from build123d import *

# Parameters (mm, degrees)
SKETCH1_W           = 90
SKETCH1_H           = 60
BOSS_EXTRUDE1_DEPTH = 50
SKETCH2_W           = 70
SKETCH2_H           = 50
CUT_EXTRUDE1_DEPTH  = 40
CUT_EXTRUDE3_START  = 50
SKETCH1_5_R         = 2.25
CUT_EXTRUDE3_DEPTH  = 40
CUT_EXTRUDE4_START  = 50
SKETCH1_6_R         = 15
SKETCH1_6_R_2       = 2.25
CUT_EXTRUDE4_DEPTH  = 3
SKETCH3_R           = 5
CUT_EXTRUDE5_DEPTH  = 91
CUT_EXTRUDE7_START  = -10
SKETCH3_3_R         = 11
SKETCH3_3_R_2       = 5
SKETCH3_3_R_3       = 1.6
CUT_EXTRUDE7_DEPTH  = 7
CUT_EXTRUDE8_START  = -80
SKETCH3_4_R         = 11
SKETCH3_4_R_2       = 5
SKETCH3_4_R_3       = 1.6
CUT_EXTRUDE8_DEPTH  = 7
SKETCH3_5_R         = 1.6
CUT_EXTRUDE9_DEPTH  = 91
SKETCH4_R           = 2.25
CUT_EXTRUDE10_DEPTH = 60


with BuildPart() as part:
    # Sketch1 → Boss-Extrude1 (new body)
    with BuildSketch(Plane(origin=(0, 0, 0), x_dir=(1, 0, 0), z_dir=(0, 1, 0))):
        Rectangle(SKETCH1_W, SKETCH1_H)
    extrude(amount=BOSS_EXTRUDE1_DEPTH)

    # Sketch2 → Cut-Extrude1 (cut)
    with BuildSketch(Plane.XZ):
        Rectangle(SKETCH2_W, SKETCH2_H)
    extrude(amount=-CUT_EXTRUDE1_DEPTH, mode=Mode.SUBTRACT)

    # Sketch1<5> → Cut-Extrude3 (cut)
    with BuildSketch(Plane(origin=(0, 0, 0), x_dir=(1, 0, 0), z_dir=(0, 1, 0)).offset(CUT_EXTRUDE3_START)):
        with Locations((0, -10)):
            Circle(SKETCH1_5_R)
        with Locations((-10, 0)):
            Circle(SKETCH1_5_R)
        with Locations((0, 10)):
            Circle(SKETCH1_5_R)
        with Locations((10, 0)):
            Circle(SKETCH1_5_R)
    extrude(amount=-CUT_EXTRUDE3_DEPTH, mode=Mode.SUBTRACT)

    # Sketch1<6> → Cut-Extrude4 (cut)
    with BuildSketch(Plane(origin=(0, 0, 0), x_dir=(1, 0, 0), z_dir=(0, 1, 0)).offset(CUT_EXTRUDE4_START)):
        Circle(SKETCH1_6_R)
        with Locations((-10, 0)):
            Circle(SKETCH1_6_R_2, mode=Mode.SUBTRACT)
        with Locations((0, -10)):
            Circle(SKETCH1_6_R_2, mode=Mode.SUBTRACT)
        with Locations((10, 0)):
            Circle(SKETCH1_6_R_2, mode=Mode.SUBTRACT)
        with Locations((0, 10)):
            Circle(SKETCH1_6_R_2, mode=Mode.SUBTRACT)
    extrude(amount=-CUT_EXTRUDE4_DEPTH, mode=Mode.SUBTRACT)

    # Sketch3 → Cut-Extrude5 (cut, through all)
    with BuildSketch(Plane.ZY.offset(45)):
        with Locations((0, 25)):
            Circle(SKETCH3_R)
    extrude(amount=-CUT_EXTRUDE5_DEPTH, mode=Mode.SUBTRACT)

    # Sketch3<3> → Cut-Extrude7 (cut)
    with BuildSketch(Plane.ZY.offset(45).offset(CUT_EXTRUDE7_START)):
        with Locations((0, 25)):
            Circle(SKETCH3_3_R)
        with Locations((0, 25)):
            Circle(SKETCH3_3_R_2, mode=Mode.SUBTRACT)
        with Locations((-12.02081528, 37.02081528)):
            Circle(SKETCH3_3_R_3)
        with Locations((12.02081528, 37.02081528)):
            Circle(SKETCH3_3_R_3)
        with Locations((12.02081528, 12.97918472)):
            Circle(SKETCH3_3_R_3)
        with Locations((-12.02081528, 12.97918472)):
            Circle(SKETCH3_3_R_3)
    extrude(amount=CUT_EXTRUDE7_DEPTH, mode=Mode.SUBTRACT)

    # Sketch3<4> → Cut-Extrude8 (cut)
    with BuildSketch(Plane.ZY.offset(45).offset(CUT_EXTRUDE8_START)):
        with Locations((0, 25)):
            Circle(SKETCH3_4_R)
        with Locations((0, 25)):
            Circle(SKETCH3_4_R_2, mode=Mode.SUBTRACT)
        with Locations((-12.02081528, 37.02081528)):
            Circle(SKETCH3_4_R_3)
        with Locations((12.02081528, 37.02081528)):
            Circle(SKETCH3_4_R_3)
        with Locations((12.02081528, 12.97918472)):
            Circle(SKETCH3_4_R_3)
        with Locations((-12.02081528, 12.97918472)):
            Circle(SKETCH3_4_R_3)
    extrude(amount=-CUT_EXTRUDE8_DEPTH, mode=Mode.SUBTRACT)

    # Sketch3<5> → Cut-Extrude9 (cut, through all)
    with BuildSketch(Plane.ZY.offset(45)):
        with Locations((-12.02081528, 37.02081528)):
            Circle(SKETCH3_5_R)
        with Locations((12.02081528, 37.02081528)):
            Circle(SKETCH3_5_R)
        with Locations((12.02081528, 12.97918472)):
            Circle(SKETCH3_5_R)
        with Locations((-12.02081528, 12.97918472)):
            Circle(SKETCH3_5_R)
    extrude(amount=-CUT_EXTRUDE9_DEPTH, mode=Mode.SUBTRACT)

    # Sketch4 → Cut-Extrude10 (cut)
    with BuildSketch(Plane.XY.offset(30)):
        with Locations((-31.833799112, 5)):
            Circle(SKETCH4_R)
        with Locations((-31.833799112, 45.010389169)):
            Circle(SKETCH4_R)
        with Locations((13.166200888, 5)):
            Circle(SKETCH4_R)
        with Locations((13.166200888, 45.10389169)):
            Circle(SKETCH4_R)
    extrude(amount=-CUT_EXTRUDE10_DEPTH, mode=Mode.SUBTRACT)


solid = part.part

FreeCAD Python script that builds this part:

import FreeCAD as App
import Part
import Sketcher
Q = App.Units.Quantity

doc = App.newDocument("Part")
body = doc.addObject("PartDesign::Body", "Body")

sketch1 = body.newObject("Sketcher::SketchObject", "Sketch")
sketch1.AttachmentSupport = (doc.getObject("XZ_Plane"), [""])
sketch1.MapMode = "FlatFace"
sketch1.addGeometry([
    Part.LineSegment(App.Vector(-45, -30, 0), App.Vector(-45, 30, 0)),
    Part.LineSegment(App.Vector(-45, 30, 0), App.Vector(45, 30, 0)),
    Part.LineSegment(App.Vector(45, 30, 0), App.Vector(45, -30, 0)),
    Part.LineSegment(App.Vector(45, -30, 0), App.Vector(-45, -30, 0)),
], False)
sketch1.addConstraint([
    Sketcher.Constraint("Coincident", 0, 2, 1, 1),
    Sketcher.Constraint("Coincident", 1, 2, 2, 1),
    Sketcher.Constraint("Coincident", 2, 2, 3, 1),
    Sketcher.Constraint("Coincident", 3, 2, 0, 1),
    Sketcher.Constraint("Vertical", 0),
    Sketcher.Constraint("Horizontal", 1),
    Sketcher.Constraint("Vertical", 2),
    Sketcher.Constraint("Horizontal", 3),
    Sketcher.Constraint("Symmetric", 0, 2, 2, 2, -1, 1),
    Sketcher.Constraint("DistanceX", 1, 1, 1, 2, Q("90 mm")),
    Sketcher.Constraint("DistanceY", 0, 1, 0, 2, Q("60 mm")),
])
pad1 = body.newObject("PartDesign::Pad", "Pad")
pad1.Profile = sketch1
pad1.Length = 50
pad1.Reversed = True

sketch2 = body.newObject("Sketcher::SketchObject", "Sketch001")
sketch2.AttachmentSupport = (doc.getObject("XZ_Plane"), [""])
sketch2.MapMode = "FlatFace"
sketch2.addGeometry([
    Part.LineSegment(App.Vector(-35, 25, 0), App.Vector(-35, -25, 0)),
    Part.LineSegment(App.Vector(-35, -25, 0), App.Vector(35, -25, 0)),
    Part.LineSegment(App.Vector(35, -25, 0), App.Vector(35, 25, 0)),
    Part.LineSegment(App.Vector(35, 25, 0), App.Vector(-35, 25, 0)),
], False)
sketch2.addConstraint([
    Sketcher.Constraint("Coincident", 0, 2, 1, 1),
    Sketcher.Constraint("Coincident", 1, 2, 2, 1),
    Sketcher.Constraint("Coincident", 2, 2, 3, 1),
    Sketcher.Constraint("Coincident", 3, 2, 0, 1),
    Sketcher.Constraint("Vertical", 0),
    Sketcher.Constraint("Horizontal", 1),
    Sketcher.Constraint("Vertical", 2),
    Sketcher.Constraint("Horizontal", 3),
    Sketcher.Constraint("Symmetric", 0, 2, 2, 2, -1, 1),
    Sketcher.Constraint("DistanceX", 1, 1, 1, 2, Q("70 mm")),
    Sketcher.Constraint("DistanceY", 0, 2, 0, 1, Q("50 mm")),
])
pocket1 = body.newObject("PartDesign::Pocket", "Pocket")
pocket1.Profile = sketch2
pocket1.Length = 40

sketch3 = body.newObject("Sketcher::SketchObject", "Sketch002")
sketch3.AttachmentSupport = (doc.getObject("XZ_Plane"), [""])
sketch3.MapMode = "FlatFace"
sketch3.AttachmentOffset = App.Placement(App.Vector(0, 0, -50), App.Rotation())
sketch3.addGeometry([
    Part.Circle(App.Vector(0, 10, 0), App.Vector(0, 0, 1), 2.2),
    Part.Circle(App.Vector(-10, 0, 0), App.Vector(0, 0, 1), 2.2),
    Part.Circle(App.Vector(0, -10, 0), App.Vector(0, 0, 1), 2.2),
    Part.Circle(App.Vector(10, 0, 0), App.Vector(0, 0, 1), 2.2),
], False)
sketch3.addConstraint([
    Sketcher.Constraint("Equal", 0, 1),
    Sketcher.Constraint("Equal", 1, 2),
    Sketcher.Constraint("Equal", 2, 3),
    Sketcher.Constraint("Symmetric", 0, 3, 2, 3, -1, 1),
    Sketcher.Constraint("Symmetric", 1, 3, 3, 3, -1, 1),
    Sketcher.Constraint("PointOnObject", 0, 3, -2),
    Sketcher.Constraint("PointOnObject", 1, 3, -1),
    Sketcher.Constraint("Diameter", 0, Q("4.5 mm")),
    Sketcher.Constraint("DistanceY", -1, 1, 0, 3, Q("10 mm")),
    Sketcher.Constraint("DistanceX", 1, 3, -1, 1, Q("10 mm")),
])
pocket2 = body.newObject("PartDesign::Pocket", "Pocket001")
pocket2.Profile = sketch3
pocket2.Length = 40
pocket2.Reversed = True

sketch4 = body.newObject("Sketcher::SketchObject", "Sketch003")
sketch4.AttachmentSupport = (doc.getObject("XZ_Plane"), [""])
sketch4.MapMode = "FlatFace"
sketch4.AttachmentOffset = App.Placement(App.Vector(0, 0, -50), App.Rotation())
sketch4.addGeometry([
    Part.Circle(App.Vector(0, 0, 0), App.Vector(0, 0, 1), 15),
    Part.Circle(App.Vector(0, 10, 0), App.Vector(0, 0, 1), 2.2),
    Part.Circle(App.Vector(-10, 0, 0), App.Vector(0, 0, 1), 2.2),
    Part.Circle(App.Vector(10, 0, 0), App.Vector(0, 0, 1), 2.2),
    Part.Circle(App.Vector(0, -10, 0), App.Vector(0, 0, 1), 2.2),
], False)
sketch4.addConstraint([
    Sketcher.Constraint("Coincident", 0, 3, -1, 1),
    Sketcher.Constraint("Equal", 1, 2),
    Sketcher.Constraint("Equal", 2, 3),
    Sketcher.Constraint("Equal", 3, 4),
    Sketcher.Constraint("Symmetric", 2, 3, 3, 3, -1, 1),
    Sketcher.Constraint("Symmetric", 1, 3, 4, 3, -1, 1),
    Sketcher.Constraint("PointOnObject", 1, 3, -2),
    Sketcher.Constraint("PointOnObject", 2, 3, -1),
    Sketcher.Constraint("Diameter", 0, Q("30 mm")),
    Sketcher.Constraint("Diameter", 1, Q("4.5 mm")),
    Sketcher.Constraint("DistanceY", -1, 1, 1, 3, Q("10 mm")),
    Sketcher.Constraint("DistanceX", 2, 3, -1, 1, Q("10 mm")),
])
pocket3 = body.newObject("PartDesign::Pocket", "Pocket002")
pocket3.Profile = sketch4
pocket3.Length = 3
pocket3.Reversed = True

sketch5 = body.newObject("Sketcher::SketchObject", "Sketch004")
sketch5.AttachmentSupport = (doc.getObject("YZ_Plane"), [""])
sketch5.MapMode = "FlatFace"
sketch5.AttachmentOffset = App.Placement(App.Vector(0, 0, -45), App.Rotation())
sketch5.addGeometry(Part.Circle(App.Vector(25, 0, 0), App.Vector(0, 0, 1), 5), False)
sketch5.addConstraint([
    Sketcher.Constraint("PointOnObject", 0, 3, -1),
    Sketcher.Constraint("Diameter", 0, Q("10 mm")),
    Sketcher.Constraint("DistanceX", -1, 1, 0, 3, Q("25 mm")),
])
pocket4 = body.newObject("PartDesign::Pocket", "Pocket003")
pocket4.Profile = sketch5
pocket4.Type = "ThroughAll"
pocket4.Reversed = True

sketch6 = body.newObject("Sketcher::SketchObject", "Sketch005")
sketch6.AttachmentSupport = (doc.getObject("YZ_Plane"), [""])
sketch6.MapMode = "FlatFace"
sketch6.AttachmentOffset = App.Placement(App.Vector(0, 0, -35), App.Rotation())
sketch6.addGeometry([
    Part.Circle(App.Vector(25, 0, 0), App.Vector(0, 0, 1), 11),
    Part.Circle(App.Vector(25, 0, 0), App.Vector(0, 0, 1), 5),
    Part.Circle(App.Vector(37, -12, 0), App.Vector(0, 0, 1), 1.6),
    Part.Circle(App.Vector(37, 12, 0), App.Vector(0, 0, 1), 1.6),
    Part.Circle(App.Vector(13, 12, 0), App.Vector(0, 0, 1), 1.6),
    Part.Circle(App.Vector(13, -12, 0), App.Vector(0, 0, 1), 1.6),
], False)
sketch6.addConstraint([
    Sketcher.Constraint("Coincident", 1, 3, 0, 3),
    Sketcher.Constraint("Equal", 2, 3),
    Sketcher.Constraint("Equal", 3, 4),
    Sketcher.Constraint("Equal", 4, 5),
    Sketcher.Constraint("Symmetric", 2, 3, 3, 3, -1),
    Sketcher.Constraint("Symmetric", 4, 3, 5, 3, -1),
    Sketcher.Constraint("PointOnObject", 0, 3, -1),
    Sketcher.Constraint("Horizontal", 3, 3, 4, 3),
    Sketcher.Constraint("Diameter", 0, Q("22 mm")),
    Sketcher.Constraint("Diameter", 1, Q("10 mm")),
    Sketcher.Constraint("Diameter", 2, Q("3.2 mm")),
    Sketcher.Constraint("DistanceX", -1, 1, 0, 3, Q("25 mm")),
    Sketcher.Constraint("DistanceY", 2, 3, 3, 3, Q("24.041631 mm")),
    Sketcher.Constraint("DistanceX", 4, 3, 3, 3, Q("24.041631 mm")),
    Sketcher.Constraint("DistanceX", -1, 1, 2, 3, Q("37.020815 mm")),
])
pocket5 = body.newObject("PartDesign::Pocket", "Pocket004")
pocket5.Profile = sketch6
pocket5.Length = 7

sketch7 = body.newObject("Sketcher::SketchObject", "Sketch006")
sketch7.AttachmentSupport = (doc.getObject("YZ_Plane"), [""])
sketch7.MapMode = "FlatFace"
sketch7.AttachmentOffset = App.Placement(App.Vector(0, 0, 35), App.Rotation())
sketch7.addGeometry([
    Part.Circle(App.Vector(25, 0, 0), App.Vector(0, 0, 1), 11),
    Part.Circle(App.Vector(25, 0, 0), App.Vector(0, 0, 1), 5),
    Part.Circle(App.Vector(37, -12, 0), App.Vector(0, 0, 1), 1.6),
    Part.Circle(App.Vector(37, 12, 0), App.Vector(0, 0, 1), 1.6),
    Part.Circle(App.Vector(13, 12, 0), App.Vector(0, 0, 1), 1.6),
    Part.Circle(App.Vector(13, -12, 0), App.Vector(0, 0, 1), 1.6),
], False)
sketch7.addConstraint([
    Sketcher.Constraint("Coincident", 1, 3, 0, 3),
    Sketcher.Constraint("Equal", 2, 3),
    Sketcher.Constraint("Equal", 3, 4),
    Sketcher.Constraint("Equal", 4, 5),
    Sketcher.Constraint("Symmetric", 2, 3, 3, 3, -1),
    Sketcher.Constraint("Symmetric", 4, 3, 5, 3, -1),
    Sketcher.Constraint("PointOnObject", 0, 3, -1),
    Sketcher.Constraint("Horizontal", 3, 3, 4, 3),
    Sketcher.Constraint("Diameter", 0, Q("22 mm")),
    Sketcher.Constraint("Diameter", 1, Q("10 mm")),
    Sketcher.Constraint("Diameter", 2, Q("3.2 mm")),
    Sketcher.Constraint("DistanceX", -1, 1, 0, 3, Q("25 mm")),
    Sketcher.Constraint("DistanceY", 2, 3, 3, 3, Q("24.041631 mm")),
    Sketcher.Constraint("DistanceX", 4, 3, 3, 3, Q("24.041631 mm")),
    Sketcher.Constraint("DistanceX", -1, 1, 2, 3, Q("37.020815 mm")),
])
pocket6 = body.newObject("PartDesign::Pocket", "Pocket005")
pocket6.Profile = sketch7
pocket6.Length = 7
pocket6.Reversed = True

sketch8 = body.newObject("Sketcher::SketchObject", "Sketch007")
sketch8.AttachmentSupport = (doc.getObject("YZ_Plane"), [""])
sketch8.MapMode = "FlatFace"
sketch8.AttachmentOffset = App.Placement(App.Vector(0, 0, -45), App.Rotation())
sketch8.addGeometry([
    Part.Circle(App.Vector(37, -12, 0), App.Vector(0, 0, 1), 1.6),
    Part.Circle(App.Vector(37, 12, 0), App.Vector(0, 0, 1), 1.6),
    Part.Circle(App.Vector(13, 12, 0), App.Vector(0, 0, 1), 1.6),
    Part.Circle(App.Vector(13, -12, 0), App.Vector(0, 0, 1), 1.6),
], False)
sketch8.addConstraint([
    Sketcher.Constraint("Equal", 0, 1),
    Sketcher.Constraint("Equal", 1, 2),
    Sketcher.Constraint("Equal", 2, 3),
    Sketcher.Constraint("Symmetric", 0, 3, 1, 3, -1),
    Sketcher.Constraint("Symmetric", 2, 3, 3, 3, -1),
    Sketcher.Constraint("Horizontal", 1, 3, 2, 3),
    Sketcher.Constraint("Diameter", 0, Q("3.2 mm")),
    Sketcher.Constraint("DistanceY", 0, 3, 1, 3, Q("24.041631 mm")),
    Sketcher.Constraint("DistanceX", 2, 3, 1, 3, Q("24.041631 mm")),
    Sketcher.Constraint("DistanceX", -1, 1, 0, 3, Q("37.020815 mm")),
])
pocket7 = body.newObject("PartDesign::Pocket", "Pocket006")
pocket7.Profile = sketch8
pocket7.Type = "ThroughAll"
pocket7.Reversed = True

sketch9 = body.newObject("Sketcher::SketchObject", "Sketch008")
sketch9.AttachmentSupport = (doc.getObject("XY_Plane"), [""])
sketch9.MapMode = "FlatFace"
sketch9.AttachmentOffset = App.Placement(App.Vector(0, 0, 30), App.Rotation())
sketch9.addGeometry([
    Part.Circle(App.Vector(-31.8, 5, 0), App.Vector(0, 0, 1), 2.2),
    Part.Circle(App.Vector(-31.8, 45, 0), App.Vector(0, 0, 1), 2.2),
    Part.Circle(App.Vector(13.2, 5, 0), App.Vector(0, 0, 1), 2.2),
    Part.Circle(App.Vector(13.2, 45.1, 0), App.Vector(0, 0, 1), 2.2),
], False)
sketch9.addConstraint([
    Sketcher.Constraint("Equal", 0, 1),
    Sketcher.Constraint("Equal", 1, 2),
    Sketcher.Constraint("Equal", 2, 3),
    Sketcher.Constraint("Horizontal", 0, 3, 2, 3),
    Sketcher.Constraint("Vertical", 0, 3, 1, 3),
    Sketcher.Constraint("Vertical", 2, 3, 3, 3),
    Sketcher.Constraint("Diameter", 0, Q("4.5 mm")),
    Sketcher.Constraint("DistanceY", -1, 1, 0, 3, Q("5 mm")),
    Sketcher.Constraint("DistanceX", 0, 3, 2, 3, Q("45 mm")),
    Sketcher.Constraint("DistanceX", 0, 3, -1, 1, Q("31.833799 mm")),
    Sketcher.Constraint("DistanceY", -1, 1, 1, 3, Q("45.010389 mm")),
    Sketcher.Constraint("DistanceY", -1, 1, 3, 3, Q("45.103892 mm")),
])
pocket8 = body.newObject("PartDesign::Pocket", "Pocket007")
pocket8.Profile = sketch9
pocket8.Length = 60

doc.recompute()
